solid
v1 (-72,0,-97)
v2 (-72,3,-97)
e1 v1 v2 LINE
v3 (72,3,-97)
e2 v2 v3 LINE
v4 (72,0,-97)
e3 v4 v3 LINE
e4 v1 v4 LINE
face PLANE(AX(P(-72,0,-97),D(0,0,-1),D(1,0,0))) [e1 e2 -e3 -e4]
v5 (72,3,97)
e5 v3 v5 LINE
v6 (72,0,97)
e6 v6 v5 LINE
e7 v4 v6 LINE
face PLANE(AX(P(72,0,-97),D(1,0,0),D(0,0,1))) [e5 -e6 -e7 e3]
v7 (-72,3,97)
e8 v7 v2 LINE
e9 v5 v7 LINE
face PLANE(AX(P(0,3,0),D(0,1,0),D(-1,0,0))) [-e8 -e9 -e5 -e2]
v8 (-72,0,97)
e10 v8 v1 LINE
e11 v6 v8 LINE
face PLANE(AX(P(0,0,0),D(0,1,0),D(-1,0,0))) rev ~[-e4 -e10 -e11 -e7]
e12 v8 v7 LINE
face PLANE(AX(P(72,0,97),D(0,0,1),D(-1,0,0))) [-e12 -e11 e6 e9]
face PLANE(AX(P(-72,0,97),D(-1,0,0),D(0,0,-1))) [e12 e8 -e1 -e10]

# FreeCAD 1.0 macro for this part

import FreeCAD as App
import Part
import Sketcher
from FreeCAD import Vector


def add_polygon(sketch, points):
    """Adds a closed chain of lines whose ends are joined by coincident constraints."""
    first, n = sketch.GeometryCount, len(points)
    for a, b in zip(points, points[1:] + points[:1]):
        sketch.addGeometry(Part.LineSegment(App.Vector(*a, 0), App.Vector(*b, 0)), False)
    for i in range(n):
        sketch.addConstraint(Sketcher.Constraint("Coincident", first + i, 2, first + (i + 1) % n, 1))

doc = App.newDocument("Part")
body = doc.addObject("PartDesign::Body", "Body")

sketch1 = doc.addObject("Sketcher::SketchObject", "Sketch")
body.addObject(sketch1)
sketch1.AttachmentSupport = (doc.XZ_Plane, [""])
sketch1.MapMode = "FlatFace"
add_polygon(sketch1, [(-72, 97), (72, 97), (72, -97), (-72, -97)])
sketch1.addConstraint(Sketcher.Constraint("Horizontal", 0))
sketch1.addConstraint(Sketcher.Constraint("Vertical", 1))
sketch1.addConstraint(Sketcher.Constraint("Horizontal", 2))
sketch1.addConstraint(Sketcher.Constraint("Vertical", 3))
sketch1.addConstraint(Sketcher.Constraint("Symmetric", 0, 2, 2, 2, -1, 1))
sketch1.addConstraint(Sketcher.Constraint("DistanceX", 0, 1, 0, 2, 144.0))
sketch1.addConstraint(Sketcher.Constraint("DistanceY", 1, 2, 1, 1, 194.0))
pad1 = doc.addObject("PartDesign::Pad", "Pad")
body.addObject(pad1)
pad1.Profile = sketch1
pad1.Length = 3
pad1.Reversed = True

doc.recompute()
